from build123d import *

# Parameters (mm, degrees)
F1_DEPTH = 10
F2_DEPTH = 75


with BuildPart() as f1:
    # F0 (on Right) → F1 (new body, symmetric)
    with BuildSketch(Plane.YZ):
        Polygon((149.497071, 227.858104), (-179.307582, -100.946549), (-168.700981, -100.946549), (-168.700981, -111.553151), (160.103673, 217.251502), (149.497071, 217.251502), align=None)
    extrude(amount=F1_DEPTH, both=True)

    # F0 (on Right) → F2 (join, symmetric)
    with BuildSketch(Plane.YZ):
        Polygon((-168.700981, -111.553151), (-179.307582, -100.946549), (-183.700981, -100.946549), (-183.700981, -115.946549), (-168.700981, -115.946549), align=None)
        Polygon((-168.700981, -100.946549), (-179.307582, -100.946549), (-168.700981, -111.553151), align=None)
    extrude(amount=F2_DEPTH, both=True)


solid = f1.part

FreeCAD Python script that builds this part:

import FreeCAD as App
import Part
import Sketcher

V = App.Vector
Q = App.Units.Quantity


def add_polygon(sketch, points):
    """Adds a closed chain of lines whose ends are joined by coincident constraints."""
    first, n = sketch.GeometryCount, len(points)
    for a, b in zip(points, points[1:] + points[:1]):
        sketch.addGeometry(Part.LineSegment(App.Vector(*a, 0), App.Vector(*b, 0)), False)
    for i in range(n):
        sketch.addConstraint(Sketcher.Constraint("Coincident", first + i, 2, first + (i + 1) % n, 1))

doc = App.newDocument("Part")
params = doc.addObject("Spreadsheet::Sheet", "Params")
for row, (alias, value) in enumerate([
    ("sketch1_length", "465 mm"),
    ("pad1_length", "20 mm"),
    ("sketch2_width", "15 mm"),
    ("pad2_length", "150 mm"),
], start=1):
    params.set(f"A{row}", alias)
    params.set(f"B{row}", "=" + value)
    params.setAlias(f"B{row}", alias)

body = doc.addObject("PartDesign::Body", "Body")

# Sketch on YZ plane
sketch1 = doc.addObject("Sketcher::SketchObject", "Sketch")
body.addObject(sketch1)
sketch1.AttachmentSupport = (doc.YZ_Plane, [""])
sketch1.MapMode = "FlatFace"
add_polygon(sketch1, [(149, 228), (-179, -101), (-169, -101), (-169, -112), (160, 217), (149, 217)])  # lines 0-5
sketch1.addConstraint(Sketcher.Constraint("Horizontal", 1))
sketch1.addConstraint(Sketcher.Constraint("Vertical", 2))
sketch1.addConstraint(Sketcher.Constraint("Horizontal", 4))
sketch1.addConstraint(Sketcher.Constraint("Vertical", 5))
sketch1.addConstraint(Sketcher.Constraint("Parallel", 0, 3))
sketch1.addConstraint(Sketcher.Constraint("Equal", 1, 4))
sketch1.addConstraint(Sketcher.Constraint("Equal", 4, 2))
sketch1.addConstraint(Sketcher.Constraint("Angle", 0, Q("-135 deg")))
sketch1.addConstraint(Sketcher.Constraint("Distance", 0, Q("465 mm")))
sketch1.addConstraint(Sketcher.Constraint("DistanceX", 1, 1, 1, 2, Q("10.606601 mm")))
sketch1.addConstraint(Sketcher.Constraint("DistanceY", -1, 1, 3, 2, Q("217.251502 mm")))
sketch1.addConstraint(Sketcher.Constraint("DistanceX", 0, 2, -1, 1, Q("179.307582 mm")))
sketch1.setExpression("Constraints[14]", "Params.sketch1_length")
pad1 = doc.addObject("PartDesign::Pad", "Pad")
body.addObject(pad1)
pad1.Profile = sketch1
pad1.setExpression("Length", "Params.pad1_length")
pad1.Midplane = True

# Sketch on YZ plane
sketch2 = doc.addObject("Sketcher::SketchObject", "Sketch001")
body.addObject(sketch2)
sketch2.AttachmentSupport = (doc.YZ_Plane, [""])
sketch2.MapMode = "FlatFace"
add_polygon(sketch2, [(-184, -101), (-184, -116), (-169, -116), (-169, -101)])  # lines 0-3
sketch2.addConstraint(Sketcher.Constraint("Vertical", 0))
sketch2.addConstraint(Sketcher.Constraint("Horizontal", 1))
sketch2.addConstraint(Sketcher.Constraint("Vertical", 2))
sketch2.addConstraint(Sketcher.Constraint("Horizontal", 3))
sketch2.addConstraint(Sketcher.Constraint("Equal", 3, 0))
sketch2.addConstraint(Sketcher.Constraint("DistanceX", 1, 1, 1, 2, Q("15 mm")))
sketch2.addConstraint(Sketcher.Constraint("DistanceX", 0, 2, -1, 1, Q("183.700981 mm")))
sketch2.addConstraint(Sketcher.Constraint("DistanceY", 0, 2, -1, 1, Q("115.946549 mm")))
sketch2.setExpression("Constraints[9]", "Params.sketch2_width")
pad2 = doc.addObject("PartDesign::Pad", "Pad001")
body.addObject(pad2)
pad2.Profile = sketch2
pad2.setExpression("Length", "Params.pad2_length")
pad2.Midplane = True

doc.recompute()
